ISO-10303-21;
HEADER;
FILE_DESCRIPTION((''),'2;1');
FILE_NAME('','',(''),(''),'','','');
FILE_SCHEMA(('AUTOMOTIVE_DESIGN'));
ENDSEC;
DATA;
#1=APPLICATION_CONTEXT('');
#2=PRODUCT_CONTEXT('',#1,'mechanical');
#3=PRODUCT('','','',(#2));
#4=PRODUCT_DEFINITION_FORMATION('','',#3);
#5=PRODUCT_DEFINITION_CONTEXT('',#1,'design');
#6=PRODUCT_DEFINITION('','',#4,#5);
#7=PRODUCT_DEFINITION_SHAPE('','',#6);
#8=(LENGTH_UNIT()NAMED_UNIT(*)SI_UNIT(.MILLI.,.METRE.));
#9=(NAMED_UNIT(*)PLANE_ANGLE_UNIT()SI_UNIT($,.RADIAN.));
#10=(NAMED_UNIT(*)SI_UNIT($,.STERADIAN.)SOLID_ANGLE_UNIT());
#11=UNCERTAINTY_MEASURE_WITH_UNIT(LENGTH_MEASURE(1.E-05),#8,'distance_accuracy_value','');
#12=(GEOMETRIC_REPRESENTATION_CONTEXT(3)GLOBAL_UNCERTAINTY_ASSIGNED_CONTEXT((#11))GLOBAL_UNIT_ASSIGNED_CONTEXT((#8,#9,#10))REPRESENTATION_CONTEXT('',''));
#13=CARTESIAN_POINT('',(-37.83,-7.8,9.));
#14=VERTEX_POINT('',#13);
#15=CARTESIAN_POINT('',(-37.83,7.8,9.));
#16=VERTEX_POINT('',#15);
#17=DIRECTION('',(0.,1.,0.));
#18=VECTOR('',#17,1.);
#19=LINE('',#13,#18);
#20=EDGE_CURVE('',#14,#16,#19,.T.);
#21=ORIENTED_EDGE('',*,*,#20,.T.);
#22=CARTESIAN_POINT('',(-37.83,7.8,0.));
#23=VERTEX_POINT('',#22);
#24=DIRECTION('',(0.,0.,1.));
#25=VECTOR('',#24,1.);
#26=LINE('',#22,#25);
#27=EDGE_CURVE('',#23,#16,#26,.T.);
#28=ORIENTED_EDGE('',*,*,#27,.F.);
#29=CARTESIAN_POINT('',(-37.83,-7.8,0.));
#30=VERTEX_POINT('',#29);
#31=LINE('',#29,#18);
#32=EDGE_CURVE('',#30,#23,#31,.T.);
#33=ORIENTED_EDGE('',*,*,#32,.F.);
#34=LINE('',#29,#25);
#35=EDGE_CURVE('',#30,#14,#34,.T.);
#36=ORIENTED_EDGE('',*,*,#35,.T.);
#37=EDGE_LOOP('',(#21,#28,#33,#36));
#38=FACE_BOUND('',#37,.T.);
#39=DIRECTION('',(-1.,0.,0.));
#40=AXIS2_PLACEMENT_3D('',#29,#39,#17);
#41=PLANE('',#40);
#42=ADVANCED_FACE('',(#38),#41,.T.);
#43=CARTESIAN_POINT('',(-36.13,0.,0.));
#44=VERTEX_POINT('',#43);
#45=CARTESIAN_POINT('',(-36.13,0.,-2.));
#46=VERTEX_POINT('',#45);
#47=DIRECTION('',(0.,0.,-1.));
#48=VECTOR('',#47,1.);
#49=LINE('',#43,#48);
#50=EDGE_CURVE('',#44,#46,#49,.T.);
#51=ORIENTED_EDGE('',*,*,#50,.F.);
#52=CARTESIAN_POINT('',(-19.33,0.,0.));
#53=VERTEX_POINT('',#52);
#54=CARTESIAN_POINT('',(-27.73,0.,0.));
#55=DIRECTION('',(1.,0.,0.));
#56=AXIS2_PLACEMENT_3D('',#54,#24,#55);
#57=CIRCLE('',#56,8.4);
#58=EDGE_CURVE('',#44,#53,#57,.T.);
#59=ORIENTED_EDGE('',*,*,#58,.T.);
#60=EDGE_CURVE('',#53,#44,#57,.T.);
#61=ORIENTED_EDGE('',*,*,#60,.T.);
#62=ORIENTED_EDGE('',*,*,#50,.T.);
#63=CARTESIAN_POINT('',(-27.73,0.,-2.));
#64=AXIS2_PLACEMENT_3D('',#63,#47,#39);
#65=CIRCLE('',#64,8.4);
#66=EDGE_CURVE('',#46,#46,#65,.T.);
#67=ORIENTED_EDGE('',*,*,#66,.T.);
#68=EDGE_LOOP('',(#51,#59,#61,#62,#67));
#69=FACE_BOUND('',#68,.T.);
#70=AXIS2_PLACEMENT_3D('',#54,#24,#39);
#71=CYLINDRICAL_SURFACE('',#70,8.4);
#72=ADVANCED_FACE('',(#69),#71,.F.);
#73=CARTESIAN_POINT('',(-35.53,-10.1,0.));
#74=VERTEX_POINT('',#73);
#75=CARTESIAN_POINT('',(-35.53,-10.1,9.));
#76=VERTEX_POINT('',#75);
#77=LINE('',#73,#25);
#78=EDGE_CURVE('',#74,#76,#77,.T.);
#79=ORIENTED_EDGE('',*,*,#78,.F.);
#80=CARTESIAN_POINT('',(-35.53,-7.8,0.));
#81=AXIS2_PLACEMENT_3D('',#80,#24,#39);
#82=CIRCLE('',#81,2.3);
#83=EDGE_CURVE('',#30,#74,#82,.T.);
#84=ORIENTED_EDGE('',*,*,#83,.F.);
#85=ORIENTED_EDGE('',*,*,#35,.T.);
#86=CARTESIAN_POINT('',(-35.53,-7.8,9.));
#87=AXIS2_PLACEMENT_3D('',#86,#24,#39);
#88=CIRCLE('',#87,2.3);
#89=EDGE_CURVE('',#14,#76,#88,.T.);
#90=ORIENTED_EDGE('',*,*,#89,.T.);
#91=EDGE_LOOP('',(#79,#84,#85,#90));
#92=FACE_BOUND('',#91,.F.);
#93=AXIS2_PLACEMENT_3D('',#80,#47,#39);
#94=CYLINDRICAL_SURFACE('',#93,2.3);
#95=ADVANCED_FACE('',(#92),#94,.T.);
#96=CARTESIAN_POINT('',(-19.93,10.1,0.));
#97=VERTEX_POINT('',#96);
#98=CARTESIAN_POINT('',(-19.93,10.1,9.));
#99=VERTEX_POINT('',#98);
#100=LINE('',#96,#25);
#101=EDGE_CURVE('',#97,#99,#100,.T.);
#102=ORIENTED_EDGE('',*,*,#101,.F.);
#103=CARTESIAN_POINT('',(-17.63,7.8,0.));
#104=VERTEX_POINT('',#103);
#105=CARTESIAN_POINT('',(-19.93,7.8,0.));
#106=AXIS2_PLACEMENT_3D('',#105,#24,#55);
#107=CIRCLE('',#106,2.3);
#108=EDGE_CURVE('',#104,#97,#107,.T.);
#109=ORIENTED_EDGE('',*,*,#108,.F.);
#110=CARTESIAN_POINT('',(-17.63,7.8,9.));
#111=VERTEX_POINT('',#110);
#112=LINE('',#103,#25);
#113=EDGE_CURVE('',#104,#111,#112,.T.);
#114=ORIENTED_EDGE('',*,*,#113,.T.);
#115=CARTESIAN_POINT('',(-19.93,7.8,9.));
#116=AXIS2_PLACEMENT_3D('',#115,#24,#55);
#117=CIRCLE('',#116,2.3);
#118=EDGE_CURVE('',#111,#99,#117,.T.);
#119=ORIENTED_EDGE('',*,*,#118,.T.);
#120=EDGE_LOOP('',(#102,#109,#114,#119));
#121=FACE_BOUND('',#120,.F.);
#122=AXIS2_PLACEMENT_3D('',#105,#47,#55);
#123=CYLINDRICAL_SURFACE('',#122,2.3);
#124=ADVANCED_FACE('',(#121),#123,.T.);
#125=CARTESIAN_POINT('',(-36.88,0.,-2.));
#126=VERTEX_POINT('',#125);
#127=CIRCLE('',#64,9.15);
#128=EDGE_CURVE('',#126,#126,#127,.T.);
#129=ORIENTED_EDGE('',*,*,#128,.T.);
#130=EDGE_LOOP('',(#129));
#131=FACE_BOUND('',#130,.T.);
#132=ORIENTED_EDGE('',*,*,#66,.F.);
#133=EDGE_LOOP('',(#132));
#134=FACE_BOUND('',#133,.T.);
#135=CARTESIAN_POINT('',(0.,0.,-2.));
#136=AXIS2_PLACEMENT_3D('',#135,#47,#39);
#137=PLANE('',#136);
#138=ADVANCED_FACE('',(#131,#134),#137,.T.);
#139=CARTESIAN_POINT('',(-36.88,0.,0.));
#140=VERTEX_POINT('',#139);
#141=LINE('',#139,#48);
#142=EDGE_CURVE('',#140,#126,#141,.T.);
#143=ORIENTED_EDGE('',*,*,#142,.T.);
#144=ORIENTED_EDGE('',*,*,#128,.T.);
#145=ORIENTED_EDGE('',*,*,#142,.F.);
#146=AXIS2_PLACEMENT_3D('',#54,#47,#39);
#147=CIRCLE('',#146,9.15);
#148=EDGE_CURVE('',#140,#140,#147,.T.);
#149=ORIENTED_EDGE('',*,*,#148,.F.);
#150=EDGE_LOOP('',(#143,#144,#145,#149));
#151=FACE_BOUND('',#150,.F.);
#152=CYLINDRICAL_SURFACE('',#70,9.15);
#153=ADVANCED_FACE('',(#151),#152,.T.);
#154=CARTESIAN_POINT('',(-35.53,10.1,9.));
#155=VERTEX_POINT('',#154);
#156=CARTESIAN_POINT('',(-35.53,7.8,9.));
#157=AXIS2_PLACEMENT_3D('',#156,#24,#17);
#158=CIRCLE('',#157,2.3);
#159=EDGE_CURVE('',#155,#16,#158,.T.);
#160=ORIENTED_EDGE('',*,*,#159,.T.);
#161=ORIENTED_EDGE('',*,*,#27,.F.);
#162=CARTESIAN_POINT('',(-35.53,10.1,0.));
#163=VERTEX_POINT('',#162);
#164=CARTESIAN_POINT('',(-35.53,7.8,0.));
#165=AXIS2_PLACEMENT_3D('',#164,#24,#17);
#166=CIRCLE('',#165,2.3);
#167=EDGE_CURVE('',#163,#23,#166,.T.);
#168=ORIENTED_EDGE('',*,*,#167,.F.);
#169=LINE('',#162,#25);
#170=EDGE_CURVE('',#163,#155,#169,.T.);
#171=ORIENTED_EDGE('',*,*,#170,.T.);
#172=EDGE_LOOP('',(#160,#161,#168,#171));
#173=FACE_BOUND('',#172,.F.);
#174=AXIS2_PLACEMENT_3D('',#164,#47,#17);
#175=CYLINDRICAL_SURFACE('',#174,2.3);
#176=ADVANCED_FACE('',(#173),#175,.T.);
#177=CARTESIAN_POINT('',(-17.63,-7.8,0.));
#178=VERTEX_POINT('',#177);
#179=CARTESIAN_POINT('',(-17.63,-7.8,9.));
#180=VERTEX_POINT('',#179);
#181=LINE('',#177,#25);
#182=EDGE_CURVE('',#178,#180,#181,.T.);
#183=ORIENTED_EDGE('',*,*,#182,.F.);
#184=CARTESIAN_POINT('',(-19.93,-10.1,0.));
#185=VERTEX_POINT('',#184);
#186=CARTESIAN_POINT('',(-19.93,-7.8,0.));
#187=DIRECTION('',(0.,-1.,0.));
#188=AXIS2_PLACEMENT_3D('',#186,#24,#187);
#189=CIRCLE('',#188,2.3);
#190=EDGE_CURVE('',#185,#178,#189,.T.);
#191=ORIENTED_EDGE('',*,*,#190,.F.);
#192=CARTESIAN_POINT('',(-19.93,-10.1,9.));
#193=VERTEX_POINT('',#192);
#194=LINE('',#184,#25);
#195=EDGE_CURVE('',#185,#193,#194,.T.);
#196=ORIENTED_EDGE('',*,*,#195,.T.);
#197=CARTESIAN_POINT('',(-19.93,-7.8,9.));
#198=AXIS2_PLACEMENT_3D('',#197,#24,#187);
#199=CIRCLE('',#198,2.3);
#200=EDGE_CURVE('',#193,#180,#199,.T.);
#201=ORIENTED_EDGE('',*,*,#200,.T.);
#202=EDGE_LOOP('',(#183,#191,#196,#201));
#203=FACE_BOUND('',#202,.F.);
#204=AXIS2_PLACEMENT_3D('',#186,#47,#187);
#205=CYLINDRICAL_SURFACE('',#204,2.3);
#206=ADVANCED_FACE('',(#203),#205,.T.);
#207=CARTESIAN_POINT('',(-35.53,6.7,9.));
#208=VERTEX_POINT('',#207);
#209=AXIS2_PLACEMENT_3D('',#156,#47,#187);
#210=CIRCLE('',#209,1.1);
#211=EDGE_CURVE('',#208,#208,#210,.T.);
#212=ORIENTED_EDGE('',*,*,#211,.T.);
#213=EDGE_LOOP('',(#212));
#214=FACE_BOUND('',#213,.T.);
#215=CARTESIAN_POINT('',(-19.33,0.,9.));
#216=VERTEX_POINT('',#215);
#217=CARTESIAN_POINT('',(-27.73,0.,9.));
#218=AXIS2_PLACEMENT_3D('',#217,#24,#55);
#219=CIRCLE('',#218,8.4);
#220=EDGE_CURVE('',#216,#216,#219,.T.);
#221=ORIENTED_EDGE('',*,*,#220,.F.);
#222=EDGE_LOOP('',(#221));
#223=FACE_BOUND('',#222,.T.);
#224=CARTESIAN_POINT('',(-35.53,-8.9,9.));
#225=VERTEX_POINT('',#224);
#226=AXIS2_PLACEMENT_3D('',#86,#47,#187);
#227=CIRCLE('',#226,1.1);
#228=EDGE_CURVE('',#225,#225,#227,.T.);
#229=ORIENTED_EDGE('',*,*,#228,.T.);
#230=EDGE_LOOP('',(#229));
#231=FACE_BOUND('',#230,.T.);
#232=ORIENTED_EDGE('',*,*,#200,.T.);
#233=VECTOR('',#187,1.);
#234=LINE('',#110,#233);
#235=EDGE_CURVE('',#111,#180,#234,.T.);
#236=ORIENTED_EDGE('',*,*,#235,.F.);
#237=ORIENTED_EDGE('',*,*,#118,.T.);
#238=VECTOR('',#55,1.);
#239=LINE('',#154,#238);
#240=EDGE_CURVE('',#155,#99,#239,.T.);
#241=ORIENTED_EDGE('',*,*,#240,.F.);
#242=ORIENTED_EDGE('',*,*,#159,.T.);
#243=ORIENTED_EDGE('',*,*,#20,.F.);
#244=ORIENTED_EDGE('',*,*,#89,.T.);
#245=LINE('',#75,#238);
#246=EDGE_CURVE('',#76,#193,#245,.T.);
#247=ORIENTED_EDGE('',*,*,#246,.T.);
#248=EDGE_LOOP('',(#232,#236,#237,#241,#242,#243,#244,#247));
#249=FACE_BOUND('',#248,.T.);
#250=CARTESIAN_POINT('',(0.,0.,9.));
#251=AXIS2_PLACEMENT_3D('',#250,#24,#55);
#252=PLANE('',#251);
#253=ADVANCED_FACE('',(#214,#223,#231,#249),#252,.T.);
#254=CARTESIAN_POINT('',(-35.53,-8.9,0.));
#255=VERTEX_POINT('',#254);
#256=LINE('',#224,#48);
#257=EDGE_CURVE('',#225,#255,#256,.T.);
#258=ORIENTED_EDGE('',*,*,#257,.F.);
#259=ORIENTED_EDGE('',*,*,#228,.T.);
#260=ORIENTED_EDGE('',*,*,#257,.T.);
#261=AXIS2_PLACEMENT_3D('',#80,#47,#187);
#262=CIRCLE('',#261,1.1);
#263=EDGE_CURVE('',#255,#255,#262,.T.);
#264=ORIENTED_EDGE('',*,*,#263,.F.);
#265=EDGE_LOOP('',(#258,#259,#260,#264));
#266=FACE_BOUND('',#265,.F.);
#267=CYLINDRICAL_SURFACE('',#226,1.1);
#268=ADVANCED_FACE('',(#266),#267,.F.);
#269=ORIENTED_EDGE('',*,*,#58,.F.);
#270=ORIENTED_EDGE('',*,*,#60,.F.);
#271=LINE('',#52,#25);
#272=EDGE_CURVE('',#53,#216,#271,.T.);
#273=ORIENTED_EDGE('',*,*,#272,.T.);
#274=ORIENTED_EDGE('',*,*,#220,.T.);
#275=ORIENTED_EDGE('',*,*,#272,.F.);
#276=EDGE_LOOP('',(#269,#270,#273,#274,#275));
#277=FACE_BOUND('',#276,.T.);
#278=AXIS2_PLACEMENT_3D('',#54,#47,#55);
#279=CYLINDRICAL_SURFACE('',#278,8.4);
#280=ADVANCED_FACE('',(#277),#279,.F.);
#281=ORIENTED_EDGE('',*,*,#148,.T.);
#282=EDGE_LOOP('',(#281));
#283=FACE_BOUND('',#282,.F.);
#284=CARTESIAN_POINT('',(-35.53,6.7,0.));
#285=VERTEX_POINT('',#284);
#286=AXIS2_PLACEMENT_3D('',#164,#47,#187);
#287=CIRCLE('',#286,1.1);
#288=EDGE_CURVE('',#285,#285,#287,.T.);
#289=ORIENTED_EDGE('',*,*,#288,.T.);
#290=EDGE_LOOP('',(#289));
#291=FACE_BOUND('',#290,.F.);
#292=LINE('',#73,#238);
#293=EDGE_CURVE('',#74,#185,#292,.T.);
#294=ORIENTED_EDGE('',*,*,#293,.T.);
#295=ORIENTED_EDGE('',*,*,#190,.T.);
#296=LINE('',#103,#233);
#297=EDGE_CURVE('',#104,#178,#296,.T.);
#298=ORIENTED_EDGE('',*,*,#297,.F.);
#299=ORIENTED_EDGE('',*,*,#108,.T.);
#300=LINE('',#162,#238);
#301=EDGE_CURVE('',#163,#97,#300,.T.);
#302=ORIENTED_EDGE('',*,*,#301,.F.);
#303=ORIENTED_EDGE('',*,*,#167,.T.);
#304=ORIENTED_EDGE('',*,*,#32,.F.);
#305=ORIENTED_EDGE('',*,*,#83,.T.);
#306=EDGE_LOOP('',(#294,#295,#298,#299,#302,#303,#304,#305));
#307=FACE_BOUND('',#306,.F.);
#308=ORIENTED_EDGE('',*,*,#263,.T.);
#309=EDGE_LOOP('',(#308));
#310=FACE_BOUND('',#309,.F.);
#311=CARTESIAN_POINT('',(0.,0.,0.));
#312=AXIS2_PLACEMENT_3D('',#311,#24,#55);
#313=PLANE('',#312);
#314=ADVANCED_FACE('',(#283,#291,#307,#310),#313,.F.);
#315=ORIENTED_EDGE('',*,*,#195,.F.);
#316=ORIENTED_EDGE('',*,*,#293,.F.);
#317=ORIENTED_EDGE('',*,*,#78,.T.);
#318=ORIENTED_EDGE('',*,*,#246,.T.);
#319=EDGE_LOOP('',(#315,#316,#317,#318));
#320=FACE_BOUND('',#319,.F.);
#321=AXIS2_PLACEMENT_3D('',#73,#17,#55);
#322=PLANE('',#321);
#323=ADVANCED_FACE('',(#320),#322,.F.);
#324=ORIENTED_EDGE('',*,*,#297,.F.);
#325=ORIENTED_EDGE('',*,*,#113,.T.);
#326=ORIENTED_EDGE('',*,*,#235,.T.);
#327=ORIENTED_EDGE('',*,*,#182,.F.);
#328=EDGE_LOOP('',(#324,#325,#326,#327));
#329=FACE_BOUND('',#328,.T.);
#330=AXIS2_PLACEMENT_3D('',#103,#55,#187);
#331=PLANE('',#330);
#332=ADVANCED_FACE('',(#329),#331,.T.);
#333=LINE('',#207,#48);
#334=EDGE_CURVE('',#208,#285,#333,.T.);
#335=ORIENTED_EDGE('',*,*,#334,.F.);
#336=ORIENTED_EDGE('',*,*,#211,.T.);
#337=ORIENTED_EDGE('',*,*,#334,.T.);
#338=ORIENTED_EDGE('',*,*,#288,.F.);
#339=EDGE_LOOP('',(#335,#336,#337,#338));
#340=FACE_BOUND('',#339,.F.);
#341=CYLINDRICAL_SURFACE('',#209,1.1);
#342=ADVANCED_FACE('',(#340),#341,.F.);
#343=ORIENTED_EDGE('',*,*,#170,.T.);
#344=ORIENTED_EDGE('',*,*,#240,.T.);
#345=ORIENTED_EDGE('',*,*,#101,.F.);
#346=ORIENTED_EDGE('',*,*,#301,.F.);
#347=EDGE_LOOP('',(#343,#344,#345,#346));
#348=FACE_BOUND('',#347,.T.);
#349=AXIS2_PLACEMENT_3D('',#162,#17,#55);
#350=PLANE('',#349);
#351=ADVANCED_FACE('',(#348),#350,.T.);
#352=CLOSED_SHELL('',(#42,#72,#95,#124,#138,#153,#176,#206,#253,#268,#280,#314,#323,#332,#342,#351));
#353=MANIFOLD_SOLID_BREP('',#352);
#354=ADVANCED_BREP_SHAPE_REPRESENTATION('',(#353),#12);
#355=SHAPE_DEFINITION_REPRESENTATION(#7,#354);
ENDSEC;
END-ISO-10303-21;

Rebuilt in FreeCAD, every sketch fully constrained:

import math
import FreeCAD as App
import Part
import Sketcher

V = App.Vector

doc = App.newDocument("Part")
body = doc.addObject("PartDesign::Body", "Body")

# Sketch on XY plane
sketch1 = body.newObject("Sketcher::SketchObject", "Sketch")
sketch1.AttachmentSupport = (doc.getObject("XY_Plane"), [""])
sketch1.MapMode = "FlatFace"
sketch1.addGeometry(Part.LineSegment(V(-19.93, 10.1, 0), V(-35.53, 10.1, 0)), False)
sketch1.addGeometry(Part.ArcOfCircle(Part.Circle(V(-35.53, 7.8, 0), V(0, 0, 1), 2.3), math.radians(90), math.radians(180)), False)
sketch1.addGeometry(Part.LineSegment(V(-37.83, 7.8, 0), V(-37.83, -7.8, 0)), False)
sketch1.addGeometry(Part.ArcOfCircle(Part.Circle(V(-35.53, -7.8, 0), V(0, 0, 1), 2.3), math.radians(180), math.radians(270)), False)
sketch1.addGeometry(Part.LineSegment(V(-35.53, -10.1, 0), V(-19.93, -10.1, 0)), False)
sketch1.addGeometry(Part.ArcOfCircle(Part.Circle(V(-19.93, -7.8, 0), V(0, 0, 1), 2.3), math.radians(-90), math.radians(0)), False)
sketch1.addGeometry(Part.LineSegment(V(-17.63, -7.8, 0), V(-17.63, 7.8, 0)), False)
sketch1.addGeometry(Part.ArcOfCircle(Part.Circle(V(-19.93, 7.8, 0), V(0, 0, 1), 2.3), math.radians(0), math.radians(90)), False)
sketch1.addGeometry(Part.Circle(V(-27.73, 0, 0), V(0, 0, 1), 8.4), False)
sketch1.addConstraint(Sketcher.Constraint("Tangent", 0, 2, 1, 1))
sketch1.addConstraint(Sketcher.Constraint("Tangent", 1, 2, 2, 1))
sketch1.addConstraint(Sketcher.Constraint("Tangent", 2, 2, 3, 1))
sketch1.addConstraint(Sketcher.Constraint("Tangent", 3, 2, 4, 1))
sketch1.addConstraint(Sketcher.Constraint("Tangent", 4, 2, 5, 1))
sketch1.addConstraint(Sketcher.Constraint("Tangent", 5, 2, 6, 1))
sketch1.addConstraint(Sketcher.Constraint("Tangent", 6, 2, 7, 1))
sketch1.addConstraint(Sketcher.Constraint("Tangent", 7, 2, 0, 1))
sketch1.addConstraint(Sketcher.Constraint("Horizontal", 0))
sketch1.addConstraint(Sketcher.Constraint("Vertical", 2))
sketch1.addConstraint(Sketcher.Constraint("Horizontal", 4))
sketch1.addConstraint(Sketcher.Constraint("Vertical", 6))
sketch1.addConstraint(Sketcher.Constraint("Equal", 1, 3))
sketch1.addConstraint(Sketcher.Constraint("Equal", 3, 5))
sketch1.addConstraint(Sketcher.Constraint("Equal", 5, 7))
sketch1.addConstraint(Sketcher.Constraint("PointOnObject", 8, 3, -1))
sketch1.addConstraint(Sketcher.Constraint("Equal", 4, 2))
sketch1.addConstraint(Sketcher.Constraint("Diameter", 8, 16.8))
sketch1.addConstraint(Sketcher.Constraint("Radius", 1, 2.3))
sketch1.addConstraint(Sketcher.Constraint("DistanceX", 0, 2, 0, 1, 15.6))
sketch1.addConstraint(Sketcher.Constraint("DistanceY", -1, 1, 1, 3, 7.8))
sketch1.addConstraint(Sketcher.Constraint("DistanceX", 1, 3, 8, 3, 7.8))
sketch1.addConstraint(Sketcher.Constraint("DistanceX", 1, 3, -1, 1, 35.53))
pad1 = body.newObject("PartDesign::Pad", "Pad")
pad1.Profile = sketch1
pad1.Length = 9

# Sketch on XY plane
sketch2 = body.newObject("Sketcher::SketchObject", "Sketch001")
sketch2.AttachmentSupport = (doc.getObject("XY_Plane"), [""])
sketch2.MapMode = "FlatFace"
sketch2.AttachmentOffset = App.Placement(V(0, 0, 9), App.Rotation())
sketch2.addGeometry(Part.Circle(V(-35.53, -7.8, 0), V(0, 0, 1), 1.1), False)
sketch2.addGeometry(Part.Circle(V(-35.53, 7.8, 0), V(0, 0, 1), 1.1), False)
sketch2.addConstraint(Sketcher.Constraint("Equal", 0, 1))
sketch2.addConstraint(Sketcher.Constraint("Symmetric", 0, 3, 1, 3, -1))
sketch2.addConstraint(Sketcher.Constraint("Diameter", 0, 2.2))
sketch2.addConstraint(Sketcher.Constraint("DistanceY", 0, 3, -1, 1, 7.8))
sketch2.addConstraint(Sketcher.Constraint("DistanceX", 0, 3, -1, 1, 35.53))
doc.recompute()
hole = body.newObject("PartDesign::Hole", "Hole")
hole.Profile = sketch2
hole.ThreadType = "None"
hole.Diameter = 2.2
hole.DepthType = "Dimension"
hole.Depth = 15
hole.DrillPoint = "Angled"
hole.DrillPointAngle = 118

# Sketch on XY plane
sketch3 = body.newObject("Sketcher::SketchObject", "Sketch002")
sketch3.AttachmentSupport = (doc.getObject("XY_Plane"), [""])
sketch3.MapMode = "FlatFace"
sketch3.addGeometry(Part.Circle(V(-27.73, 0, 0), V(0, 0, 1), 9.15), False)
sketch3.addGeometry(Part.Circle(V(-27.73, 0, 0), V(0, 0, 1), 8.4), False)
sketch3.addConstraint(Sketcher.Constraint("Coincident", 1, 3, 0, 3))
sketch3.addConstraint(Sketcher.Constraint("PointOnObject", 0, 3, -1))
sketch3.addConstraint(Sketcher.Constraint("Diameter", 0, 18.3))
sketch3.addConstraint(Sketcher.Constraint("Diameter", 1, 16.8))
sketch3.addConstraint(Sketcher.Constraint("DistanceX", 0, 3, -1, 1, 27.73))
pad2 = body.newObject("PartDesign::Pad", "Pad001")
pad2.Profile = sketch3
pad2.Length = 2
pad2.Reversed = True

doc.recompute()
